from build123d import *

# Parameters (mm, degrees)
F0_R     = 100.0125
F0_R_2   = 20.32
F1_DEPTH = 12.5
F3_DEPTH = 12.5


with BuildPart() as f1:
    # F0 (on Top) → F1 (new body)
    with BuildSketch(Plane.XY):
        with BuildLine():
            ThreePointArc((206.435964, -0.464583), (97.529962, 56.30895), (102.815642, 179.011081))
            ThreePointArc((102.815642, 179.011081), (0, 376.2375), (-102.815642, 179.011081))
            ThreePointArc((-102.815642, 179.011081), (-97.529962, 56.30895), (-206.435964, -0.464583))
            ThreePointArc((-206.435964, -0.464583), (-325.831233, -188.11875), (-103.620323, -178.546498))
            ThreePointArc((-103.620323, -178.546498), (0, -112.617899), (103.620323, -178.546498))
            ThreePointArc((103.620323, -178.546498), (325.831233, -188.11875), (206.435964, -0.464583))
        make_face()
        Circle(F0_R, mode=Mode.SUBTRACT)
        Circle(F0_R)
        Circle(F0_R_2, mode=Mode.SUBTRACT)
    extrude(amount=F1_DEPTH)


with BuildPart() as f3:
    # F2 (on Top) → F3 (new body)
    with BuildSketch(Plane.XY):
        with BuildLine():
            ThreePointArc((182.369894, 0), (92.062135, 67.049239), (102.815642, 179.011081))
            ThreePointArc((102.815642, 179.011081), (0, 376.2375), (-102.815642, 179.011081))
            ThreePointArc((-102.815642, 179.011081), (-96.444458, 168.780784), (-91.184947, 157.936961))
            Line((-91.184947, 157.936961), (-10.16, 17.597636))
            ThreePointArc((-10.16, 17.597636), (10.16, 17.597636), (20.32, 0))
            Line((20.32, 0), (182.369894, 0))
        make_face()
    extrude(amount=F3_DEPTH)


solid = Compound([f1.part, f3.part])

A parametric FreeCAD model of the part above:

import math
import FreeCAD as App
import Part
import Sketcher
Q = App.Units.Quantity

doc = App.newDocument("Part")
body = doc.addObject("PartDesign::Body", "Body")

# Sketch on XY plane
sketch1 = body.newObject("Sketcher::SketchObject", "Sketch")
sketch1.AttachmentSupport = (doc.getObject("XY_Plane"), [""])
sketch1.MapMode = "FlatFace"
sketch1.addGeometry([
    Part.ArcOfCircle(Part.Circle(App.Vector(197, 114, 0), App.Vector(0, 0, 1), 114), math.radians(145), math.radians(275)),  # 0
    Part.ArcOfCircle(Part.Circle(App.Vector(0, 251, 0), App.Vector(0, 0, 1), 125), math.radians(-35), math.radians(215)),  # 1
    Part.ArcOfCircle(Part.Circle(App.Vector(-197, 114, 0), App.Vector(0, 0, 1), 114), math.radians(-95), math.radians(35)),  # 2
    Part.ArcOfCircle(Part.Circle(App.Vector(-217, -125, 0), App.Vector(0, 0, 1), 125), math.radians(85), math.radians(335)),  # 3
    Part.ArcOfCircle(Part.Circle(App.Vector(0, -227, 0), App.Vector(0, 0, 1), 114), math.radians(25), math.radians(155)),  # 4
    Part.ArcOfCircle(Part.Circle(App.Vector(217, -125, 0), App.Vector(0, 0, 1), 125), math.radians(-155), math.radians(95)),  # 5
    Part.Circle(App.Vector(0, 0, 0), App.Vector(0, 0, 1), 20),  # 6
], False)
sketch1.addConstraint([
    Sketcher.Constraint("Tangent", 0, 1, 1, 1),
    Sketcher.Constraint("Tangent", 1, 2, 2, 2),
    Sketcher.Constraint("Tangent", 2, 1, 3, 1),
    Sketcher.Constraint("Tangent", 3, 2, 4, 2),
    Sketcher.Constraint("Tangent", 4, 1, 5, 1),
    Sketcher.Constraint("Tangent", 5, 2, 0, 2),
    Sketcher.Constraint("Coincident", 6, 3, -1, 1),
    Sketcher.Constraint("Equal", 0, 2),
    Sketcher.Constraint("Equal", 1, 3),
    Sketcher.Constraint("Equal", 2, 4),
    Sketcher.Constraint("Equal", 3, 5),
    Sketcher.Constraint("Symmetric", 0, 3, 2, 3, -2),
    Sketcher.Constraint("PointOnObject", 4, 3, -2),
    Sketcher.Constraint("Diameter", 6, Q("1.6 in")),
    Sketcher.Constraint("Radius", 1, Q("4.9375 in")),
    Sketcher.Constraint("DistanceY", 4, 3, 3, 3, Q("4 in")),
    Sketcher.Constraint("Radius", 0, 114.394601),
    Sketcher.Constraint("DistanceY", -1, 1, 0, 3, Q("4.46875 in")),
    Sketcher.Constraint("DistanceY", -1, 1, 1, 3, Q("9.875 in")),
])
pad1 = body.newObject("PartDesign::Pad", "Pad")
pad1.Profile = sketch1
pad1.Length = 12.5
body2 = doc.addObject("PartDesign::Body", "Body001")

# Sketch on XY plane
sketch2 = body2.newObject("Sketcher::SketchObject", "Sketch001")
sketch2.AttachmentSupport = (doc.getObject("XY_Plane001"), [""])
sketch2.MapMode = "FlatFace"
sketch2.addGeometry([
    Part.ArcOfCircle(Part.Circle(App.Vector(197, 114, 0), App.Vector(0, 0, 1), 114), math.radians(145), math.radians(263)),  # 0
    Part.ArcOfCircle(Part.Circle(App.Vector(0, 251, 0), App.Vector(0, 0, 1), 125), math.radians(-35), math.radians(215)),  # 1
    Part.ArcOfCircle(Part.Circle(App.Vector(-197, 114, 0), App.Vector(0, 0, 1), 114), math.radians(22.85), math.radians(34.93)),  # 2
    Part.LineSegment(App.Vector(-91, 158, 0), App.Vector(-10, 18, 0)),  # 3
    Part.ArcOfCircle(Part.Circle(App.Vector(0, 0, 0), App.Vector(0, 0, 1), 20), math.radians(0), math.radians(120)),  # 4
    Part.LineSegment(App.Vector(20, 0, 0), App.Vector(182, 0, 0)),  # 5
], False)
sketch2.addConstraint([
    Sketcher.Constraint("Tangent", 0, 1, 1, 1),
    Sketcher.Constraint("Tangent", 1, 2, 2, 2),
    Sketcher.Constraint("Coincident", 2, 1, 3, 1),
    Sketcher.Constraint("Coincident", 3, 2, 4, 2),
    Sketcher.Constraint("Coincident", 4, 1, 5, 1),
    Sketcher.Constraint("Coincident", 5, 2, 0, 2),
    Sketcher.Constraint("Horizontal", 5),
    Sketcher.Constraint("Coincident", 4, 3, -1, 1),
    Sketcher.Constraint("Symmetric", 0, 1, 1, 2, -2),
    Sketcher.Constraint("PointOnObject", 4, 1, -1),
    Sketcher.Constraint("Radius", 4, Q("0.8 in")),
    Sketcher.Constraint("Angle", 3, Q("-60 deg")),
    Sketcher.Constraint("Radius", 1, Q("4.9375 in")),
    Sketcher.Constraint("DistanceX", 3, 2, -1, 1, Q("0.4 in")),
    Sketcher.Constraint("Radius", 0, 114.3946),
    Sketcher.Constraint("DistanceY", -1, 1, 0, 3, Q("4.46875 in")),
    Sketcher.Constraint("DistanceY", -1, 1, 1, 3, Q("9.875 in")),
    Sketcher.Constraint("Radius", 2, 114.394559),
])
pad2 = body2.newObject("PartDesign::Pad", "Pad001")
pad2.Profile = sketch2
pad2.Length = 12.5

doc.recompute()
